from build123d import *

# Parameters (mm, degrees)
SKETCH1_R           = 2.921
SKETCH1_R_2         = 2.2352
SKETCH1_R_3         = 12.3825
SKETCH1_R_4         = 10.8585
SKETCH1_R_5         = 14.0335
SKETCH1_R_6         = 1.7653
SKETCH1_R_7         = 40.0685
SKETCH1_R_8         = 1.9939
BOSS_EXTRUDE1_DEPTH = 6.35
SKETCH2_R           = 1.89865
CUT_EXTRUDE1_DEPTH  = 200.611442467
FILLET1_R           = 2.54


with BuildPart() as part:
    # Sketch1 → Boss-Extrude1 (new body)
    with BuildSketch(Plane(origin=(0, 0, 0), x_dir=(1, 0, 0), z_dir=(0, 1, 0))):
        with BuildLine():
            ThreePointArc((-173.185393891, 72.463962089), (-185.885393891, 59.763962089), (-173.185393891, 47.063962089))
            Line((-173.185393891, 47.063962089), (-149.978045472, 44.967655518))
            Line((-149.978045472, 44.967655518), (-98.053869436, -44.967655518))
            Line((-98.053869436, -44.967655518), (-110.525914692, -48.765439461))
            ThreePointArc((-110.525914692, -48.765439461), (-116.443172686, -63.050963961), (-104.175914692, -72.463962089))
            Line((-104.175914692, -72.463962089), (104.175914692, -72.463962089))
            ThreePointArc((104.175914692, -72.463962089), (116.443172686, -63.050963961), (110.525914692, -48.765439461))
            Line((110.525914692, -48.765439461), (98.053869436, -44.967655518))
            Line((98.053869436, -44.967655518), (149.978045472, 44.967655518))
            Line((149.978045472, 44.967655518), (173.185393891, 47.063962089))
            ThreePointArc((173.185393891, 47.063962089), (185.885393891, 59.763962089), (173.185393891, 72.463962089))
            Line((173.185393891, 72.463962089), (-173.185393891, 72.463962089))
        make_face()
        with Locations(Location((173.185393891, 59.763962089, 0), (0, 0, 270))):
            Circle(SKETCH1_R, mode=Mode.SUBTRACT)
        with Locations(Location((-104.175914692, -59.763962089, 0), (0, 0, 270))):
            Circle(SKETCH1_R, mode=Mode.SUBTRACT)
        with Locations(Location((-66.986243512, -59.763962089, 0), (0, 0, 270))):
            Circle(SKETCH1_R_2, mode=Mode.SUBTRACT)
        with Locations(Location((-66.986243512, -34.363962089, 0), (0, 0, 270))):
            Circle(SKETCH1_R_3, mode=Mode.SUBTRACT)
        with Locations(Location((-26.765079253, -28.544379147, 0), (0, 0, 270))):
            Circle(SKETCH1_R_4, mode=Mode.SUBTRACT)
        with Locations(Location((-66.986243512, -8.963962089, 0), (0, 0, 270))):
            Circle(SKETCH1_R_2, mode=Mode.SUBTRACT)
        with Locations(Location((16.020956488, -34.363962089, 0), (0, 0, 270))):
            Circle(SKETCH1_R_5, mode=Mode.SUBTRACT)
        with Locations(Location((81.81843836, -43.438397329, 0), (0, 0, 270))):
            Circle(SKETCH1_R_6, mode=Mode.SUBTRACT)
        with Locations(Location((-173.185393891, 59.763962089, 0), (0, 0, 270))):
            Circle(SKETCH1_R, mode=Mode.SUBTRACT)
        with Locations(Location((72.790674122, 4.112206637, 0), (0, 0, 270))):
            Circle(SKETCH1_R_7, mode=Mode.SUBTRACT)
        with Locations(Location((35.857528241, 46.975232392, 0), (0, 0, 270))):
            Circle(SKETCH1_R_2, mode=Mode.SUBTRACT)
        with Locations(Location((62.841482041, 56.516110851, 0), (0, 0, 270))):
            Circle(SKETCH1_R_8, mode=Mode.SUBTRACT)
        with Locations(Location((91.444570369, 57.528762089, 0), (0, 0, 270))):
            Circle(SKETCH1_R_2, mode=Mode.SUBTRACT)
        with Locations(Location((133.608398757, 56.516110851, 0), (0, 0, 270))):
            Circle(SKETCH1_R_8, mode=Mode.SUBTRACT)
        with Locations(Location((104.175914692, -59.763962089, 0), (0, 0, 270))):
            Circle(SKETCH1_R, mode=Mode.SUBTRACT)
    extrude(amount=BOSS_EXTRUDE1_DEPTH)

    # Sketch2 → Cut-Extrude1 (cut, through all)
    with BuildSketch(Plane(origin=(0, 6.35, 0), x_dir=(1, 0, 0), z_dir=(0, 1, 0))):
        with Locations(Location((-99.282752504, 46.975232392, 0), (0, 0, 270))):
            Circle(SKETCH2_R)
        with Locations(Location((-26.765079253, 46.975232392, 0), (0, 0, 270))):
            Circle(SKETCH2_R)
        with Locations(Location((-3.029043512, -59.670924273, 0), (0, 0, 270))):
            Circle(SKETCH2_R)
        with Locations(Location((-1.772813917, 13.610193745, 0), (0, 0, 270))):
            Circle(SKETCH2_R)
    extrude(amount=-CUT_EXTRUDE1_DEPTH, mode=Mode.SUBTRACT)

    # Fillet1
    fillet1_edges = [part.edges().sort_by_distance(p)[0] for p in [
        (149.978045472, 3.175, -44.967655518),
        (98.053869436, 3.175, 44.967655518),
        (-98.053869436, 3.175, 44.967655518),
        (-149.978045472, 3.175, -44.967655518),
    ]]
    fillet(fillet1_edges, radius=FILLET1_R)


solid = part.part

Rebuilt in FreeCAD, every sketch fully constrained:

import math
import FreeCAD as App
import Part
import Sketcher
from FreeCAD import Vector
Q = App.Units.Quantity


def edges_at(feature, points):
    """Names of the edges that pass closest to the given points."""
    edges = feature.Shape.Edges
    near = lambda p: min(range(len(edges)), key=lambda i: edges[i].distToShape(Part.Vertex(*p))[0])
    return sorted({f"Edge{near(p) + 1}" for p in points})

doc = App.newDocument("Part")
body = doc.addObject("PartDesign::Body", "Body")

# Sketch on XZ plane
sketch1 = body.newObject("Sketcher::SketchObject", "Sketch")
sketch1.AttachmentSupport = (doc.getObject("XZ_Plane"), [""])
sketch1.MapMode = "FlatFace"
sketch1.addGeometry(Part.ArcOfCircle(Part.Circle(Vector(-173.2, -59.8, 0), Vector(0, 0, 1), 12.7), math.radians(90), math.radians(270)), False)
sketch1.addGeometry(Part.LineSegment(Vector(-173.2, -47.1, 0), Vector(-150, -45, 0)), False)
sketch1.addGeometry(Part.LineSegment(Vector(-150, -45, 0), Vector(-98.1, 45, 0)), False)
sketch1.addGeometry(Part.LineSegment(Vector(-98.1, 45, 0), Vector(-110.5, 48.8, 0)), False)
sketch1.addGeometry(Part.ArcOfCircle(Part.Circle(Vector(-104.2, 59.8, 0), Vector(0, 0, 1), 12.7), math.radians(90), math.radians(240)), False)
sketch1.addGeometry(Part.LineSegment(Vector(-104.2, 72.5, 0), Vector(104.2, 72.5, 0)), False)
sketch1.addGeometry(Part.ArcOfCircle(Part.Circle(Vector(104.2, 59.8, 0), Vector(0, 0, 1), 12.7), math.radians(-60), math.radians(90)), False)
sketch1.addGeometry(Part.LineSegment(Vector(110.5, 48.8, 0), Vector(98.1, 45, 0)), False)
sketch1.addGeometry(Part.LineSegment(Vector(98.1, 45, 0), Vector(150, -45, 0)), False)
sketch1.addGeometry(Part.LineSegment(Vector(150, -45, 0), Vector(173.2, -47.1, 0)), False)
sketch1.addGeometry(Part.ArcOfCircle(Part.Circle(Vector(173.2, -59.8, 0), Vector(0, 0, 1), 12.7), math.radians(-90), math.radians(90)), False)
sketch1.addGeometry(Part.LineSegment(Vector(173.2, -72.5, 0), Vector(-173.2, -72.5, 0)), False)
sketch1.addGeometry(Part.Circle(Vector(-104.2, 59.8, 0), Vector(0, 0, 1), 2.9), False)
sketch1.addGeometry(Part.Circle(Vector(-67, 59.8, 0), Vector(0, 0, 1), 2.2), False)
sketch1.addGeometry(Part.Circle(Vector(-67, 34.4, 0), Vector(0, 0, 1), 12.4), False)
sketch1.addGeometry(Part.Circle(Vector(-26.8, 28.5, 0), Vector(0, 0, 1), 10.9), False)
sketch1.addGeometry(Part.Circle(Vector(-67, 9, 0), Vector(0, 0, 1), 2.2), False)
sketch1.addGeometry(Part.Circle(Vector(16, 34.4, 0), Vector(0, 0, 1), 14), False)
sketch1.addGeometry(Part.Circle(Vector(81.8, 43.4, 0), Vector(0, 0, 1), 1.8), False)
sketch1.addGeometry(Part.Circle(Vector(104.2, 59.8, 0), Vector(0, 0, 1), 2.9), False)
sketch1.addGeometry(Part.Circle(Vector(-173.2, -59.8, 0), Vector(0, 0, 1), 2.9), False)
sketch1.addGeometry(Part.Circle(Vector(72.8, -4.1, 0), Vector(0, 0, 1), 40.1), False)
sketch1.addGeometry(Part.Circle(Vector(35.9, -47, 0), Vector(0, 0, 1), 2.2), False)
sketch1.addGeometry(Part.Circle(Vector(62.8, -56.5, 0), Vector(0, 0, 1), 2), False)
sketch1.addGeometry(Part.Circle(Vector(91.4, -57.5, 0), Vector(0, 0, 1), 2.2), False)
sketch1.addGeometry(Part.Circle(Vector(133.6, -56.5, 0), Vector(0, 0, 1), 2), False)
sketch1.addGeometry(Part.Circle(Vector(173.2, -59.8, 0), Vector(0, 0, 1), 2.9), False)
sketch1.addConstraint(Sketcher.Constraint("Coincident", 0, 1, 1, 1))
sketch1.addConstraint(Sketcher.Constraint("Coincident", 1, 2, 2, 1))
sketch1.addConstraint(Sketcher.Constraint("Coincident", 2, 2, 3, 1))
sketch1.addConstraint(Sketcher.Constraint("Coincident", 3, 2, 4, 2))
sketch1.addConstraint(Sketcher.Constraint("Tangent", 4, 1, 5, 1))
sketch1.addConstraint(Sketcher.Constraint("Tangent", 5, 2, 6, 2))
sketch1.addConstraint(Sketcher.Constraint("Coincident", 6, 1, 7, 1))
sketch1.addConstraint(Sketcher.Constraint("Coincident", 7, 2, 8, 1))
sketch1.addConstraint(Sketcher.Constraint("Coincident", 8, 2, 9, 1))
sketch1.addConstraint(Sketcher.Constraint("Coincident", 9, 2, 10, 2))
sketch1.addConstraint(Sketcher.Constraint("Tangent", 10, 1, 11, 1))
sketch1.addConstraint(Sketcher.Constraint("Tangent", 11, 2, 0, 2))
sketch1.addConstraint(Sketcher.Constraint("Horizontal", 5))
sketch1.addConstraint(Sketcher.Constraint("Horizontal", 11))
sketch1.addConstraint(Sketcher.Constraint("Coincident", 12, 3, 4, 3))
sketch1.addConstraint(Sketcher.Constraint("Coincident", 19, 3, 6, 3))
sketch1.addConstraint(Sketcher.Constraint("Coincident", 20, 3, 0, 3))
sketch1.addConstraint(Sketcher.Constraint("Coincident", 26, 3, 10, 3))
sketch1.addConstraint(Sketcher.Constraint("Equal", 0, 4))
sketch1.addConstraint(Sketcher.Constraint("Equal", 4, 6))
sketch1.addConstraint(Sketcher.Constraint("Equal", 6, 10))
sketch1.addConstraint(Sketcher.Constraint("Equal", 13, 16))
sketch1.addConstraint(Sketcher.Constraint("Equal", 12, 19))
sketch1.addConstraint(Sketcher.Constraint("Equal", 19, 20))
sketch1.addConstraint(Sketcher.Constraint("Equal", 16, 22))
sketch1.addConstraint(Sketcher.Constraint("Equal", 22, 24))
sketch1.addConstraint(Sketcher.Constraint("Equal", 23, 25))
sketch1.addConstraint(Sketcher.Constraint("Equal", 20, 26))
sketch1.addConstraint(Sketcher.Constraint("Symmetric", 3, 2, 6, 1, -2))
sketch1.addConstraint(Sketcher.Constraint("Symmetric", 2, 2, 7, 2, -2))
sketch1.addConstraint(Sketcher.Constraint("Symmetric", 1, 2, 8, 2, -2))
sketch1.addConstraint(Sketcher.Constraint("Horizontal", 12, 3, 13, 3))
sketch1.addConstraint(Sketcher.Constraint("Horizontal", 14, 3, 17, 3))
sketch1.addConstraint(Sketcher.Constraint("Horizontal", 23, 3, 25, 3))
sketch1.addConstraint(Sketcher.Constraint("Vertical", 13, 3, 14, 3))
sketch1.addConstraint(Sketcher.Constraint("Vertical", 14, 3, 16, 3))
sketch1.addConstraint(Sketcher.Constraint("Vertical", 20, 3, 0, 1))
sketch1.addConstraint(Sketcher.Constraint("Vertical", 26, 3, 9, 2))
sketch1.addConstraint(Sketcher.Constraint("Equal", 1, 9))
sketch1.addConstraint(Sketcher.Constraint("Radius", 0, Q("0.5 in")))
sketch1.addConstraint(Sketcher.Constraint("Diameter", 12, Q("0.23 in")))
sketch1.addConstraint(Sketcher.Constraint("Diameter", 13, Q("0.176 in")))
sketch1.addConstraint(Sketcher.Constraint("Diameter", 14, Q("0.975 in")))
sketch1.addConstraint(Sketcher.Constraint("Diameter", 15, Q("0.855 in")))
sketch1.addConstraint(Sketcher.Constraint("Diameter", 17, Q("1.105 in")))
sketch1.addConstraint(Sketcher.Constraint("Diameter", 18, Q("0.139 in")))
sketch1.addConstraint(Sketcher.Constraint("Diameter", 21, Q("3.155 in")))
sketch1.addConstraint(Sketcher.Constraint("Diameter", 23, Q("0.157 in")))
sketch1.addConstraint(Sketcher.Constraint("Angle", 2, Q("60 deg")))
sketch1.addConstraint(Sketcher.Constraint("DistanceY", 14, 3, 13, 3, Q("1 in")))
sketch1.addConstraint(Sketcher.Constraint("DistanceY", 16, 3, 14, 3, Q("1 in")))
sketch1.addConstraint(Sketcher.Constraint("DistanceX", 3, 2, 4, 3, Q("0.25 in")))
sketch1.addConstraint(Sketcher.Constraint("DistanceX", 14, 3, 17, 3, Q("3.268 in")))
sketch1.addConstraint(Sketcher.Constraint("DistanceY", 10, 3, 24, 3, Q("0.088 in")))
sketch1.addConstraint(Sketcher.Constraint("DistanceX", 5, 1, 5, 2, Q("208.351829 mm")))
sketch1.addConstraint(Sketcher.Constraint("DistanceX", -1, 1, 25, 3, Q("133.608399 mm")))
sketch1.addConstraint(Sketcher.Constraint("DistanceX", 1, 2, 16, 3, Q("82.991802 mm")))
sketch1.addConstraint(Sketcher.Constraint("Distance", 3, Q("13.037449 mm")))
sketch1.addConstraint(Sketcher.Constraint("DistanceX", 11, 2, 11, 1, Q("346.370788 mm")))
sketch1.addConstraint(Sketcher.Constraint("DistanceX", 15, 3, -1, 1, Q("26.765079 mm")))
sketch1.addConstraint(Sketcher.Constraint("DistanceY", -1, 1, 15, 3, Q("28.544379 mm")))
sketch1.addConstraint(Sketcher.Constraint("DistanceX", -1, 1, 18, 3, Q("81.818438 mm")))
sketch1.addConstraint(Sketcher.Constraint("DistanceX", -1, 1, 22, 3, Q("35.857528 mm")))
sketch1.addConstraint(Sketcher.Constraint("DistanceY", 23, 3, -1, 1, Q("56.516111 mm")))
sketch1.addConstraint(Sketcher.Constraint("DistanceX", -1, 1, 24, 3, Q("91.44457 mm")))
sketch1.addConstraint(Sketcher.Constraint("DistanceX", 2, 2, -1, 1, Q("98.053869 mm")))
sketch1.addConstraint(Sketcher.Constraint("DistanceY", -1, 1, 3, 2, Q("48.765439 mm")))
sketch1.addConstraint(Sketcher.Constraint("DistanceX", 4, 3, 13, 3, Q("37.189671 mm")))
sketch1.addConstraint(Sketcher.Constraint("DistanceY", 15, 3, 18, 3, Q("14.894018 mm")))
sketch1.addConstraint(Sketcher.Constraint("DistanceY", 10, 3, 18, 3, Q("103.202359 mm")))
sketch1.addConstraint(Sketcher.Constraint("DistanceY", 21, 3, 17, 3, Q("38.476169 mm")))
sketch1.addConstraint(Sketcher.Constraint("DistanceX", 21, 3, 6, 3, Q("31.385241 mm")))
sketch1.addConstraint(Sketcher.Constraint("DistanceY", 22, 3, 15, 3, Q("75.519612 mm")))
sketch1.addConstraint(Sketcher.Constraint("DistanceX", 23, 3, 10, 3, Q("110.343912 mm")))
pad1 = body.newObject("PartDesign::Pad", "Pad")
pad1.Profile = sketch1
pad1.Length = Q("0.25 in")
pad1.Reversed = True

# Sketch on XZ plane
sketch2 = body.newObject("Sketcher::SketchObject", "Sketch001")
sketch2.AttachmentSupport = (doc.getObject("XZ_Plane"), [""])
sketch2.MapMode = "FlatFace"
sketch2.AttachmentOffset = App.Placement(Vector(0, 0, -0.25 * 25.4), App.Rotation())
sketch2.addGeometry(Part.Circle(Vector(-99.3, -47, 0), Vector(0, 0, 1), 1.9), False)
sketch2.addGeometry(Part.Circle(Vector(-26.8, -47, 0), Vector(0, 0, 1), 1.9), False)
sketch2.addGeometry(Part.Circle(Vector(-3, 59.7, 0), Vector(0, 0, 1), 1.9), False)
sketch2.addGeometry(Part.Circle(Vector(-1.8, -13.6, 0), Vector(0, 0, 1), 1.9), False)
sketch2.addConstraint(Sketcher.Constraint("Equal", 0, 1))
sketch2.addConstraint(Sketcher.Constraint("Equal", 1, 2))
sketch2.addConstraint(Sketcher.Constraint("Equal", 2, 3))
sketch2.addConstraint(Sketcher.Constraint("Horizontal", 0, 3, 1, 3))
sketch2.addConstraint(Sketcher.Constraint("Diameter", 0, Q("0.1495 in")))
sketch2.addConstraint(Sketcher.Constraint("DistanceX", 1, 3, -1, 1, Q("26.765079 mm")))
sketch2.addConstraint(Sketcher.Constraint("DistanceX", 0, 3, 2, 3, Q("96.253709 mm")))
sketch2.addConstraint(Sketcher.Constraint("DistanceY", 1, 3, 3, 3, Q("33.365039 mm")))
sketch2.addConstraint(Sketcher.Constraint("DistanceX", 2, 3, 3, 3, Q("1.25623 mm")))
sketch2.addConstraint(Sketcher.Constraint("DistanceY", 3, 3, 2, 3, Q("73.281118 mm")))
sketch2.addConstraint(Sketcher.Constraint("DistanceX", 0, 3, -1, 1, Q("99.282753 mm")))
sketch2.addConstraint(Sketcher.Constraint("DistanceY", 0, 3, -1, 1, Q("46.975232 mm")))
pocket1 = body.newObject("PartDesign::Pocket", "Pocket")
pocket1.Profile = sketch2
pocket1.Type = "ThroughAll"
pocket1.Reversed = True
doc.recompute()

fillet = body.newObject("PartDesign::Fillet", "Fillet")
fillet.Base = (pocket1, edges_at(pocket1, [
    (149.978, 3.175, -44.968),
    (98.054, 3.175, 44.968),
    (-98.054, 3.175, 44.968),
    (-149.978, 3.175, -44.968),
]))
fillet.Radius = Q("0.1 in")

doc.recompute()
